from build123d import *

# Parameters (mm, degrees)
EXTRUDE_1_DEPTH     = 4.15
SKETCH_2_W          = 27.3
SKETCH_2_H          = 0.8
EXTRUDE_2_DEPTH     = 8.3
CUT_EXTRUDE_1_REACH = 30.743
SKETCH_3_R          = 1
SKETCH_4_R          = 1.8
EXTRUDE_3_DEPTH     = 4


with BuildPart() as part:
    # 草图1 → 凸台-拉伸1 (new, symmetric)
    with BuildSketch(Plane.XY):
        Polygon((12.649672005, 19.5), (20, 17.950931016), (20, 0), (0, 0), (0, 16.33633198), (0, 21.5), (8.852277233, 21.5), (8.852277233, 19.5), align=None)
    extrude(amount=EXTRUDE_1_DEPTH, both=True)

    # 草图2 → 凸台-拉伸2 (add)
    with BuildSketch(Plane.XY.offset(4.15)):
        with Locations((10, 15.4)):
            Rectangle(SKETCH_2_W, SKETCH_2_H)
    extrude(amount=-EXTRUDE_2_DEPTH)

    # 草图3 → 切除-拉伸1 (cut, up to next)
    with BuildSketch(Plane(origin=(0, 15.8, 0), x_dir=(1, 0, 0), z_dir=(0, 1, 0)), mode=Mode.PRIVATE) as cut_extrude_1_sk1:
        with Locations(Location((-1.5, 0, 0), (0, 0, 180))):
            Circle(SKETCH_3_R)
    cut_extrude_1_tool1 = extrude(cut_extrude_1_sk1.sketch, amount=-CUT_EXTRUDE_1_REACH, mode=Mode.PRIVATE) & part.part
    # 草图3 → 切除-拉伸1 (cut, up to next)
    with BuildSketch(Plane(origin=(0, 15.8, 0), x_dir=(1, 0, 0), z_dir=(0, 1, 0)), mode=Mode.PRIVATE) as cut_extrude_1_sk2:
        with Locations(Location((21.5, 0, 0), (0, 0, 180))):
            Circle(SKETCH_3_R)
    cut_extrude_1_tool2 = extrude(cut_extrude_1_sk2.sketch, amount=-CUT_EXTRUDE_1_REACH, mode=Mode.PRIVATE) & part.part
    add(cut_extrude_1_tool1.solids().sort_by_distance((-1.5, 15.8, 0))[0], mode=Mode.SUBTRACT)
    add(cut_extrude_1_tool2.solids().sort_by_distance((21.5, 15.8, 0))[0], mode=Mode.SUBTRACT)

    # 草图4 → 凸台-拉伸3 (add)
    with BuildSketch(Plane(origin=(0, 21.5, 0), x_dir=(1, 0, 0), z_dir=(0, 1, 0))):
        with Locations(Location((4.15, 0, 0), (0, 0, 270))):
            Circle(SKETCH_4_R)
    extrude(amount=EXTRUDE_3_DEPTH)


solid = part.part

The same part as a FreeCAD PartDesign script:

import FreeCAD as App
import Part
import Sketcher
Q = App.Units.Quantity


def add_polygon(sketch, points):
    """Adds a closed chain of lines whose ends are joined by coincident constraints."""
    first, n = sketch.GeometryCount, len(points)
    for a, b in zip(points, points[1:] + points[:1]):
        sketch.addGeometry(Part.LineSegment(App.Vector(*a, 0), App.Vector(*b, 0)), False)
    for i in range(n):
        sketch.addConstraint(Sketcher.Constraint("Coincident", first + i, 2, first + (i + 1) % n, 1))

doc = App.newDocument("Part")
body = doc.addObject("PartDesign::Body", "Body")

# Sketch on XY plane
sketch1 = body.newObject("Sketcher::SketchObject", "Sketch")
sketch1.AttachmentSupport = (doc.getObject("XY_Plane"), [""])
sketch1.MapMode = "FlatFace"
add_polygon(sketch1, [(20, 17.950931), (12.649672, 19.5), (8.852277, 19.5), (8.852277, 21.5), (0, 21.5), (0, 0), (20, 0)])  # lines 0-6
sketch1.addConstraint(Sketcher.Constraint("Horizontal", 1))
sketch1.addConstraint(Sketcher.Constraint("Vertical", 2))
sketch1.addConstraint(Sketcher.Constraint("Horizontal", 3))
sketch1.addConstraint(Sketcher.Constraint("Vertical", 4))
sketch1.addConstraint(Sketcher.Constraint("Horizontal", 5))
sketch1.addConstraint(Sketcher.Constraint("Vertical", 6))
sketch1.addConstraint(Sketcher.Constraint("Coincident", 4, 2, -1, 1))
sketch1.addConstraint(Sketcher.Constraint("DistanceX", 5, 1, 5, 2, Q("20 mm")))
sketch1.addConstraint(Sketcher.Constraint("DistanceY", 2, 1, 2, 2, Q("2 mm")))
sketch1.addConstraint(Sketcher.Constraint("DistanceY", 4, 2, 4, 1, Q("21.5 mm")))
sketch1.addConstraint(Sketcher.Constraint("DistanceY", 6, 1, 6, 2, Q("17.950931 mm")))
sketch1.addConstraint(Sketcher.Constraint("DistanceX", 1, 2, 1, 1, Q("3.797395 mm")))
sketch1.addConstraint(Sketcher.Constraint("DistanceX", 3, 2, 3, 1, Q("8.852277 mm")))
pad1 = body.newObject("PartDesign::Pad", "Pad")
pad1.Profile = sketch1
pad1.Length = 8.3
pad1.Midplane = True

# Sketch on XY plane
sketch2 = body.newObject("Sketcher::SketchObject", "Sketch001")
sketch2.AttachmentSupport = (doc.getObject("XY_Plane"), [""])
sketch2.MapMode = "FlatFace"
sketch2.AttachmentOffset = App.Placement(App.Vector(0, 0, 4.15), App.Rotation())
add_polygon(sketch2, [(-3.65, 15.8), (-3.65, 15), (23.65, 15), (23.65, 15.8)])  # lines 0-3
sketch2.addConstraint(Sketcher.Constraint("Vertical", 0))
sketch2.addConstraint(Sketcher.Constraint("Horizontal", 1))
sketch2.addConstraint(Sketcher.Constraint("Vertical", 2))
sketch2.addConstraint(Sketcher.Constraint("Horizontal", 3))
sketch2.addConstraint(Sketcher.Constraint("DistanceX", 1, 1, 1, 2, Q("27.3 mm")))
sketch2.addConstraint(Sketcher.Constraint("DistanceY", 0, 2, 0, 1, Q("0.8 mm")))
sketch2.addConstraint(Sketcher.Constraint("DistanceY", -1, 1, 0, 2, Q("15 mm")))
sketch2.addConstraint(Sketcher.Constraint("DistanceX", 0, 2, -1, 1, Q("3.65 mm")))
pad2 = body.newObject("PartDesign::Pad", "Pad001")
pad2.Profile = sketch2
pad2.Length = 8.3
pad2.Reversed = True

# Sketch on XZ plane
sketch3 = body.newObject("Sketcher::SketchObject", "Sketch002")
sketch3.AttachmentSupport = (doc.getObject("XZ_Plane"), [""])
sketch3.MapMode = "FlatFace"
sketch3.AttachmentOffset = App.Placement(App.Vector(0, 0, -15.8), App.Rotation())
sketch3.addGeometry(Part.Circle(App.Vector(-1.5, 0, 0), App.Vector(0, 0, 1), 1), False)
sketch3.addConstraint(Sketcher.Constraint("PointOnObject", 0, 3, -1))
sketch3.addConstraint(Sketcher.Constraint("Diameter", 0, Q("2 mm")))
sketch3.addConstraint(Sketcher.Constraint("DistanceX", 0, 3, -1, 1, Q("1.5 mm")))
pocket1 = body.newObject("PartDesign::Pocket", "Pocket")
pocket1.Profile = sketch3
pocket1.Type = "UpToFirst"
pocket1.Reversed = True

# Sketch on XZ plane
sketch4 = body.newObject("Sketcher::SketchObject", "Sketch003")
sketch4.AttachmentSupport = (doc.getObject("XZ_Plane"), [""])
sketch4.MapMode = "FlatFace"
sketch4.AttachmentOffset = App.Placement(App.Vector(0, 0, -15.8), App.Rotation())
sketch4.addGeometry(Part.Circle(App.Vector(21.5, 0, 0), App.Vector(0, 0, 1), 1), False)
sketch4.addConstraint(Sketcher.Constraint("PointOnObject", 0, 3, -1))
sketch4.addConstraint(Sketcher.Constraint("Diameter", 0, Q("2 mm")))
sketch4.addConstraint(Sketcher.Constraint("DistanceX", -1, 1, 0, 3, Q("21.5 mm")))
pocket2 = body.newObject("PartDesign::Pocket", "Pocket001")
pocket2.Profile = sketch4
pocket2.Type = "UpToFirst"
pocket2.Reversed = True

# Sketch on XZ plane
sketch5 = body.newObject("Sketcher::SketchObject", "Sketch004")
sketch5.AttachmentSupport = (doc.getObject("XZ_Plane"), [""])
sketch5.MapMode = "FlatFace"
sketch5.AttachmentOffset = App.Placement(App.Vector(0, 0, -21.5), App.Rotation())
sketch5.addGeometry(Part.Circle(App.Vector(4.15, 0, 0), App.Vector(0, 0, 1), 1.8), False)
sketch5.addConstraint(Sketcher.Constraint("PointOnObject", 0, 3, -1))
sketch5.addConstraint(Sketcher.Constraint("Diameter", 0, Q("3.6 mm")))
sketch5.addConstraint(Sketcher.Constraint("DistanceX", -1, 1, 0, 3, Q("4.15 mm")))
pad3 = body.newObject("PartDesign::Pad", "Pad002")
pad3.Profile = sketch5
pad3.Length = 4
pad3.Reversed = True

doc.recompute()
